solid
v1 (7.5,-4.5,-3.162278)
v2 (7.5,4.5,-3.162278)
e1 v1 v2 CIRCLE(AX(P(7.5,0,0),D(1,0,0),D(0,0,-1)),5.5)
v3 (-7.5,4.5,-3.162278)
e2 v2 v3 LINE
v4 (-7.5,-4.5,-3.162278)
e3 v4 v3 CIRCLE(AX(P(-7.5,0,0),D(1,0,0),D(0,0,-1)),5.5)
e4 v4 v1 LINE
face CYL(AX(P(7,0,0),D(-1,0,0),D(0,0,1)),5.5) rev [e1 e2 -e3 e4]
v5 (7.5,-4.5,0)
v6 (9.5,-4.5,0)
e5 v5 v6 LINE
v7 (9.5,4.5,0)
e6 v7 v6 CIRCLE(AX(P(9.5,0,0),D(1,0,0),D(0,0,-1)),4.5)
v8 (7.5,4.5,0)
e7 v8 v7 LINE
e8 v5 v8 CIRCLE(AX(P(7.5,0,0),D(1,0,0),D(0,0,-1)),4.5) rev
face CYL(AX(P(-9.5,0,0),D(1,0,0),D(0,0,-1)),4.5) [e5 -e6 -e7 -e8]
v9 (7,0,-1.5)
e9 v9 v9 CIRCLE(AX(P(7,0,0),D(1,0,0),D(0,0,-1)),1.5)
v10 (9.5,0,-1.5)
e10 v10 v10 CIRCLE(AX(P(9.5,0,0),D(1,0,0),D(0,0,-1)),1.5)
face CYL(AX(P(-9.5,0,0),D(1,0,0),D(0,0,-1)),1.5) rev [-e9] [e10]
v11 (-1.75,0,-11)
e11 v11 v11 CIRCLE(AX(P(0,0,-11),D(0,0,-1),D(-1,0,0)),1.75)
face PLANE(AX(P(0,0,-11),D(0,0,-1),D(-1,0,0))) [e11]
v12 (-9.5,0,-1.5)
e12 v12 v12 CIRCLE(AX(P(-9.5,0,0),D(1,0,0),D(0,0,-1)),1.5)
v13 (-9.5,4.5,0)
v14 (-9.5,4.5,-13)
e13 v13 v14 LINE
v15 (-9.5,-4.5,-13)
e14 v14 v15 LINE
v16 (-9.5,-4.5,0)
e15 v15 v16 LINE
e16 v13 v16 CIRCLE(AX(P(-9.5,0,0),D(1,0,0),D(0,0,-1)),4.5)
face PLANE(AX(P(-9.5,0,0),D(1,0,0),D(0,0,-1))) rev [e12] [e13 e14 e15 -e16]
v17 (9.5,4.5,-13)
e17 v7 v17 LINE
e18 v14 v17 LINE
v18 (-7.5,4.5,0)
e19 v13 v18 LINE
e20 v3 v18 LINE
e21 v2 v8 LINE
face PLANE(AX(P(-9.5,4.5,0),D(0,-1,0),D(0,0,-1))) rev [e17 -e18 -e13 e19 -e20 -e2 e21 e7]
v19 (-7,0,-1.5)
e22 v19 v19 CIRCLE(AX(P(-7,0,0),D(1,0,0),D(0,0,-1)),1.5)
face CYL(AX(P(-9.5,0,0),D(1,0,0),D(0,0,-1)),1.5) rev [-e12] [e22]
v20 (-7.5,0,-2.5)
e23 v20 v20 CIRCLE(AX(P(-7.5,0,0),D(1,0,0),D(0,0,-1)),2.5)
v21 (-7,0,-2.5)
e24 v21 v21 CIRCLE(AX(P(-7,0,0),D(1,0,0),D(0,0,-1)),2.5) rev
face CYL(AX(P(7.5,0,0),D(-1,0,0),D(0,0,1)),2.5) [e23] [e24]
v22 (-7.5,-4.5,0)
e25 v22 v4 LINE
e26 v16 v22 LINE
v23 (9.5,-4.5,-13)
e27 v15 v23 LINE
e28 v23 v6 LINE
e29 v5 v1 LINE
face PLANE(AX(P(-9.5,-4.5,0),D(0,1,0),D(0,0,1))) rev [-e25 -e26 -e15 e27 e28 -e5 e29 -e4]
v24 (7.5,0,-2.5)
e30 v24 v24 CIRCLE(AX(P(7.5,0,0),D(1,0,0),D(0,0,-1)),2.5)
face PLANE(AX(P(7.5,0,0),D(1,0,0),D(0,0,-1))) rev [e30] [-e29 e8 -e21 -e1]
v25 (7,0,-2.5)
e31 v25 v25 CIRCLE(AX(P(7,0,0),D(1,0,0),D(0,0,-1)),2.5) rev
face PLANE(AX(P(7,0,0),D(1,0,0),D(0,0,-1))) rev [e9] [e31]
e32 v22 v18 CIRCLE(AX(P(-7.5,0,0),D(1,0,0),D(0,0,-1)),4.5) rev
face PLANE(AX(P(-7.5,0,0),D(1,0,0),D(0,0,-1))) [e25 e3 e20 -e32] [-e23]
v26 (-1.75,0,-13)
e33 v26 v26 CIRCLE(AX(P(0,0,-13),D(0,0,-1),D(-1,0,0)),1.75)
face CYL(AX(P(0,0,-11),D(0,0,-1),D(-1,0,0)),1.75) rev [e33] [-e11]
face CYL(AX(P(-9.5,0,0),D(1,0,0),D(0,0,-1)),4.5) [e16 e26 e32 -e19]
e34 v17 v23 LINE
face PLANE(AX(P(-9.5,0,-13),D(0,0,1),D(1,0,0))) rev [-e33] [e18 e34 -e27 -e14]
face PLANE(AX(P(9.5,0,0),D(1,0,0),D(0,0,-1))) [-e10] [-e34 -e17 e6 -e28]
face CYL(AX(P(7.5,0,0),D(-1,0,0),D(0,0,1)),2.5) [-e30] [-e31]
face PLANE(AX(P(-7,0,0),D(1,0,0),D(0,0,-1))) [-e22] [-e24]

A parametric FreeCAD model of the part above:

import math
import FreeCAD as App
import Part
import Sketcher
Q = App.Units.Quantity

doc = App.newDocument("Part")
params = doc.addObject("Spreadsheet::Sheet", "Params")
for row, (alias, value) in enumerate([
    ("sketch1_radius", "4.5 mm"),
    ("sketch1_height", "13 mm"),
    ("pad1_length", "9.5 mm"),
    ("pad1_length2", "9.5 mm"),
    ("sketch2_diameter", "11 mm"),
    ("pocket1_length", "7 mm"),
    ("pocket1_length2", "7 mm"),
    ("sketch3_diameter", "3 mm"),
    ("sketch4_diameter", "11 mm"),
    ("sketch4_diameter2", "5 mm"),
    ("pocket3_length", "7.5 mm"),
    ("pocket3_length2", "7.5 mm"),
    ("sketch5_diameter", "3.5 mm"),
    ("pocket4_length", "2 mm"),
], start=1):
    params.set(f"A{row}", alias)
    params.set(f"B{row}", "=" + value)
    params.setAlias(f"B{row}", alias)

body = doc.addObject("PartDesign::Body", "Body")

# Sketch on YZ plane
sketch1 = body.newObject("Sketcher::SketchObject", "Sketch")
sketch1.AttachmentSupport = (doc.getObject("YZ_Plane"), [""])
sketch1.MapMode = "FlatFace"
sketch1.addGeometry(Part.ArcOfCircle(Part.Circle(App.Vector(0, 0, 0), App.Vector(0, 0, 1), 4.5), math.radians(0), math.radians(180)), False)
sketch1.addGeometry(Part.LineSegment(App.Vector(-4.5, 0, 0), App.Vector(-4.5, -13, 0)), False)
sketch1.addGeometry(Part.LineSegment(App.Vector(-4.5, -13, 0), App.Vector(4.5, -13, 0)), False)
sketch1.addGeometry(Part.LineSegment(App.Vector(4.5, -13, 0), App.Vector(4.5, 0, 0)), False)
sketch1.addConstraint(Sketcher.Constraint("Tangent", 0, 2, 1, 1))
sketch1.addConstraint(Sketcher.Constraint("Coincident", 1, 2, 2, 1))
sketch1.addConstraint(Sketcher.Constraint("Coincident", 2, 2, 3, 1))
sketch1.addConstraint(Sketcher.Constraint("Tangent", 3, 2, 0, 1))
sketch1.addConstraint(Sketcher.Constraint("Vertical", 1))
sketch1.addConstraint(Sketcher.Constraint("Horizontal", 2))
sketch1.addConstraint(Sketcher.Constraint("Vertical", 3))
sketch1.addConstraint(Sketcher.Constraint("Coincident", 0, 3, -1, 1))
sketch1.addConstraint(Sketcher.Constraint("Radius", 0, Q("4.5 mm")))
sketch1.addConstraint(Sketcher.Constraint("DistanceY", 1, 2, 1, 1, Q("13 mm")))
sketch1.setExpression("Constraints[8]", "Params.sketch1_radius")
sketch1.setExpression("Constraints[9]", "Params.sketch1_height")
pad1 = body.newObject("PartDesign::Pad", "Pad")
pad1.Profile = sketch1
pad1.Type = "TwoLengths"
pad1.setExpression("Length", "Params.pad1_length")
pad1.setExpression("Length2", "Params.pad1_length2")

# Sketch on YZ plane
sketch2 = body.newObject("Sketcher::SketchObject", "Sketch001")
sketch2.AttachmentSupport = (doc.getObject("YZ_Plane"), [""])
sketch2.MapMode = "FlatFace"
sketch2.addGeometry(Part.Circle(App.Vector(0, 0, 0), App.Vector(0, 0, 1), 6), False)
sketch2.addConstraint(Sketcher.Constraint("Coincident", 0, 3, -1, 1))
sketch2.addConstraint(Sketcher.Constraint("Diameter", 0, Q("11 mm")))
sketch2.setExpression("Constraints[1]", "Params.sketch2_diameter")
pocket1 = body.newObject("PartDesign::Pocket", "Pocket")
pocket1.Profile = sketch2
pocket1.Type = "TwoLengths"
pocket1.setExpression("Length", "Params.pocket1_length")
pocket1.setExpression("Length2", "Params.pocket1_length2")
pocket1.Reversed = True

# Sketch on YZ plane
sketch3 = body.newObject("Sketcher::SketchObject", "Sketch002")
sketch3.AttachmentSupport = (doc.getObject("YZ_Plane"), [""])
sketch3.MapMode = "FlatFace"
sketch3.addGeometry(Part.Circle(App.Vector(0, 0, 0), App.Vector(0, 0, 1), 1.5), False)
sketch3.addConstraint(Sketcher.Constraint("Coincident", 0, 3, -1, 1))
sketch3.addConstraint(Sketcher.Constraint("Diameter", 0, Q("3 mm")))
sketch3.setExpression("Constraints[1]", "Params.sketch3_diameter")
pocket2 = body.newObject("PartDesign::Pocket", "Pocket001")
pocket2.Profile = sketch3
pocket2.Type = "ThroughAll"
pocket2.Midplane = True

# Sketch on YZ plane
sketch4 = body.newObject("Sketcher::SketchObject", "Sketch003")
sketch4.AttachmentSupport = (doc.getObject("YZ_Plane"), [""])
sketch4.MapMode = "FlatFace"
sketch4.addGeometry(Part.Circle(App.Vector(0, 0, 0), App.Vector(0, 0, 1), 5.5), False)
sketch4.addGeometry(Part.Circle(App.Vector(0, 0, 0), App.Vector(0, 0, 1), 2.5), False)
sketch4.addConstraint(Sketcher.Constraint("Coincident", 0, 3, -1, 1))
sketch4.addConstraint(Sketcher.Constraint("Coincident", 1, 3, -1, 1))
sketch4.addConstraint(Sketcher.Constraint("Diameter", 0, Q("11 mm")))
sketch4.addConstraint(Sketcher.Constraint("Diameter", 1, Q("5 mm")))
sketch4.setExpression("Constraints[2]", "Params.sketch4_diameter")
sketch4.setExpression("Constraints[3]", "Params.sketch4_diameter2")
pocket3 = body.newObject("PartDesign::Pocket", "Pocket002")
pocket3.Profile = sketch4
pocket3.Type = "TwoLengths"
pocket3.setExpression("Length", "Params.pocket3_length")
pocket3.setExpression("Length2", "Params.pocket3_length2")
pocket3.Reversed = True

# Sketch on XY plane
sketch5 = body.newObject("Sketcher::SketchObject", "Sketch004")
sketch5.AttachmentSupport = (doc.getObject("XY_Plane"), [""])
sketch5.MapMode = "FlatFace"
sketch5.AttachmentOffset = App.Placement(App.Vector(0, 0, -13), App.Rotation())
sketch5.addGeometry(Part.Circle(App.Vector(0, 0, 0), App.Vector(0, 0, 1), 1.8), False)
sketch5.addConstraint(Sketcher.Constraint("Coincident", 0, 3, -1, 1))
sketch5.addConstraint(Sketcher.Constraint("Diameter", 0, Q("3.5 mm")))
sketch5.setExpression("Constraints[1]", "Params.sketch5_diameter")
pocket4 = body.newObject("PartDesign::Pocket", "Pocket003")
pocket4.Profile = sketch5
pocket4.setExpression("Length", "Params.pocket4_length")
pocket4.Reversed = True

doc.recompute()
